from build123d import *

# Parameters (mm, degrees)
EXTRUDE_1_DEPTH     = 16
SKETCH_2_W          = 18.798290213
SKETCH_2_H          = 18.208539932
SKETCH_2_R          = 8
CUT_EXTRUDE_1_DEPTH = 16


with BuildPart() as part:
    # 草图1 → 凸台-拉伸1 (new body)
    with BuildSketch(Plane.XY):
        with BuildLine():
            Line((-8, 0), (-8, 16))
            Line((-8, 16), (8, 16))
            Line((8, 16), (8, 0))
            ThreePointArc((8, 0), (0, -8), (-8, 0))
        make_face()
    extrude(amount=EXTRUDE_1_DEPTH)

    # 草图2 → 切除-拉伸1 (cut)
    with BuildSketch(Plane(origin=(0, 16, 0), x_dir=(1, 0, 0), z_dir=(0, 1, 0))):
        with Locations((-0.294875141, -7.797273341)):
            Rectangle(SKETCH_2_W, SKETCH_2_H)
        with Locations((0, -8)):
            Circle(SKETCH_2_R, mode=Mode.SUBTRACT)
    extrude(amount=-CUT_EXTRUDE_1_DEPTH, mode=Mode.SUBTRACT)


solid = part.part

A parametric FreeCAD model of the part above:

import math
import FreeCAD as App
import Part
import Sketcher

V = App.Vector


def add_polygon(sketch, points):
    """Adds a closed chain of lines whose ends are joined by coincident constraints."""
    first, n = sketch.GeometryCount, len(points)
    for a, b in zip(points, points[1:] + points[:1]):
        sketch.addGeometry(Part.LineSegment(App.Vector(*a, 0), App.Vector(*b, 0)), False)
    for i in range(n):
        sketch.addConstraint(Sketcher.Constraint("Coincident", first + i, 2, first + (i + 1) % n, 1))

doc = App.newDocument("Part")
body = doc.addObject("PartDesign::Body", "Body")

sketch1 = body.newObject("Sketcher::SketchObject", "Sketch")
sketch1.AttachmentSupport = (doc.getObject("XY_Plane"), [""])
sketch1.MapMode = "FlatFace"
sketch1.addGeometry([
    Part.LineSegment(V(-8, 16, 0), V(-8, 0, 0)),
    Part.ArcOfCircle(Part.Circle(V(0, 0, 0), V(0, 0, 1), 8), math.radians(180), math.radians(360)),
    Part.LineSegment(V(8, 0, 0), V(8, 16, 0)),
    Part.LineSegment(V(8, 16, 0), V(-8, 16, 0)),
], False)
sketch1.addConstraint([
    Sketcher.Constraint("Tangent", 0, 2, 1, 1),
    Sketcher.Constraint("Tangent", 1, 2, 2, 1),
    Sketcher.Constraint("Coincident", 2, 2, 3, 1),
    Sketcher.Constraint("Coincident", 3, 2, 0, 1),
    Sketcher.Constraint("Vertical", 0),
    Sketcher.Constraint("Vertical", 2),
    Sketcher.Constraint("Horizontal", 3),
    Sketcher.Constraint("Coincident", 1, 3, -1, 1),
    Sketcher.Constraint("Equal", 3, 0),
    Sketcher.Constraint("Radius", 1, 8.0),
])
pad1 = body.newObject("PartDesign::Pad", "Pad")
pad1.Profile = sketch1
pad1.Length = 16

sketch2 = body.newObject("Sketcher::SketchObject", "Sketch001")
sketch2.AttachmentSupport = (doc.getObject("XZ_Plane"), [""])
sketch2.MapMode = "FlatFace"
sketch2.AttachmentOffset = App.Placement(V(0, 0, -16), App.Rotation())
add_polygon(sketch2, [(-9.69402, -1.306997), (-9.69402, 16.901543), (9.10427, 16.901543), (9.10427, -1.306997)])
sketch2.addGeometry(Part.Circle(V(0, 8, 0), V(0, 0, 1), 8), False)
sketch2.addConstraint([
    Sketcher.Constraint("Vertical", 0),
    Sketcher.Constraint("Horizontal", 1),
    Sketcher.Constraint("Vertical", 2),
    Sketcher.Constraint("Horizontal", 3),
    Sketcher.Constraint("PointOnObject", 4, 3, -2),
    Sketcher.Constraint("Diameter", 4, 16.0),
    Sketcher.Constraint("DistanceY", -1, 1, 4, 3, 8.0),
    Sketcher.Constraint("DistanceX", 1, 1, 1, 2, 18.79829),
    Sketcher.Constraint("DistanceY", 0, 1, 0, 2, 18.20854),
    Sketcher.Constraint("DistanceX", 0, 2, -1, 1, 9.69402),
    Sketcher.Constraint("DistanceY", -1, 1, 0, 2, 16.901543),
])
pocket1 = body.newObject("PartDesign::Pocket", "Pocket")
pocket1.Profile = sketch2
pocket1.Length = 16
pocket1.Reversed = True

doc.recompute()
